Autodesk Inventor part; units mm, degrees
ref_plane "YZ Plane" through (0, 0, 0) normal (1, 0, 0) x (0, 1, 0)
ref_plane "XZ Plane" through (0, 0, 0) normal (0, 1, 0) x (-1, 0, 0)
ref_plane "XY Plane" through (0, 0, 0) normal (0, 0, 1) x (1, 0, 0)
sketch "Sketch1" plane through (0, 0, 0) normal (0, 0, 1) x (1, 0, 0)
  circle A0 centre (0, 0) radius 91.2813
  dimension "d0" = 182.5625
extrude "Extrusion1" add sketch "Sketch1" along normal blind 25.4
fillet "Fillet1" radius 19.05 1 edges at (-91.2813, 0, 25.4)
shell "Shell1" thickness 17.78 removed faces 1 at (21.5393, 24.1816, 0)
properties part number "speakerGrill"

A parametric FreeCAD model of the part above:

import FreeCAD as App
import Part
import Sketcher

V = App.Vector
Q = App.Units.Quantity


def edges_at(feature, points):
    """Names of the edges that pass closest to the given points."""
    edges = feature.Shape.Edges
    near = lambda p: min(range(len(edges)), key=lambda i: edges[i].distToShape(Part.Vertex(*p))[0])
    return sorted({f"Edge{near(p) + 1}" for p in points})


def faces_at(feature, points):
    """Names of the faces that lie closest to the given points."""
    faces = feature.Shape.Faces
    near = lambda p: min(range(len(faces)), key=lambda i: faces[i].distToShape(Part.Vertex(*p))[0])
    return sorted({f"Face{near(p) + 1}" for p in points})

doc = App.newDocument("Part")
body = doc.addObject("PartDesign::Body", "Body")

# Sketch on XY plane
sketch1 = body.newObject("Sketcher::SketchObject", "Sketch")
sketch1.AttachmentSupport = (doc.getObject("XY_Plane"), [""])
sketch1.MapMode = "FlatFace"
sketch1.addGeometry(Part.Circle(V(0, 0, 0), V(0, 0, 1), 91), False)
sketch1.addConstraint([
    Sketcher.Constraint("Coincident", 0, 3, -1, 1),
    Sketcher.Constraint("Diameter", 0, Q("7.1875 in")),
])
pad1 = body.newObject("PartDesign::Pad", "Pad")
pad1.Profile = sketch1
pad1.Length = Q("1 in")
doc.recompute()

fillet = body.newObject("PartDesign::Fillet", "Fillet")
fillet.Base = (pad1, edges_at(pad1, [(-91.281, 0, 25.4)]))
fillet.Radius = Q("0.75 in")
doc.recompute()

thickness = body.newObject("PartDesign::Thickness", "Thickness")
thickness.Base = (fillet, faces_at(fillet, [(21.539, 24.182, 0)]))
thickness.Value = Q("0.7 in")
thickness.Reversed = True
thickness.Join = "Intersection"

doc.recompute()
